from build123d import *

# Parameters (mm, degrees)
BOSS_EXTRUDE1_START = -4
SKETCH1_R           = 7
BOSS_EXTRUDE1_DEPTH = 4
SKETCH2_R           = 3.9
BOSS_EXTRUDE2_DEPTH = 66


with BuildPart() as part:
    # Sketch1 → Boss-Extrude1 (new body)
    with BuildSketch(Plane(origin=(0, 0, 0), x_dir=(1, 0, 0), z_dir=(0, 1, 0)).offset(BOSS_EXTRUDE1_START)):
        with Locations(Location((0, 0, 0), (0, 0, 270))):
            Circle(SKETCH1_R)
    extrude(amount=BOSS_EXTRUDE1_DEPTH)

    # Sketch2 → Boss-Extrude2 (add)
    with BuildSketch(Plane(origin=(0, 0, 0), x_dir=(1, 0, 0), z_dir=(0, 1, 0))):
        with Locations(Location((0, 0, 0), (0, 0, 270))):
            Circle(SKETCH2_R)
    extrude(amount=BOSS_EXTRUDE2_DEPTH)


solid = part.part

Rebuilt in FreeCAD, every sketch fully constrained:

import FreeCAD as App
import Part
import Sketcher
Q = App.Units.Quantity

doc = App.newDocument("Part")
body = doc.addObject("PartDesign::Body", "Body")

# Sketch on XZ plane
sketch1 = doc.addObject("Sketcher::SketchObject", "Sketch")
body.addObject(sketch1)
sketch1.AttachmentSupport = (doc.XZ_Plane, [""])
sketch1.MapMode = "FlatFace"
sketch1.AttachmentOffset = App.Placement(App.Vector(0, 0, 4), App.Rotation())
sketch1.addGeometry(Part.Circle(App.Vector(0, 0, 0), App.Vector(0, 0, 1), 7), False)
sketch1.addConstraint([
    Sketcher.Constraint("Coincident", 0, 3, -1, 1),
    Sketcher.Constraint("Diameter", 0, Q("14 mm")),
])
pad1 = doc.addObject("PartDesign::Pad", "Pad")
body.addObject(pad1)
pad1.Profile = sketch1
pad1.Length = 4
pad1.Reversed = True

# Sketch on XZ plane
sketch2 = doc.addObject("Sketcher::SketchObject", "Sketch001")
body.addObject(sketch2)
sketch2.AttachmentSupport = (doc.XZ_Plane, [""])
sketch2.MapMode = "FlatFace"
sketch2.addGeometry(Part.Circle(App.Vector(0, 0, 0), App.Vector(0, 0, 1), 3.9), False)
sketch2.addConstraint([
    Sketcher.Constraint("Coincident", 0, 3, -1, 1),
    Sketcher.Constraint("Diameter", 0, Q("7.8 mm")),
])
pad2 = doc.addObject("PartDesign::Pad", "Pad001")
body.addObject(pad2)
pad2.Profile = sketch2
pad2.Length = 66
pad2.Reversed = True

doc.recompute()
